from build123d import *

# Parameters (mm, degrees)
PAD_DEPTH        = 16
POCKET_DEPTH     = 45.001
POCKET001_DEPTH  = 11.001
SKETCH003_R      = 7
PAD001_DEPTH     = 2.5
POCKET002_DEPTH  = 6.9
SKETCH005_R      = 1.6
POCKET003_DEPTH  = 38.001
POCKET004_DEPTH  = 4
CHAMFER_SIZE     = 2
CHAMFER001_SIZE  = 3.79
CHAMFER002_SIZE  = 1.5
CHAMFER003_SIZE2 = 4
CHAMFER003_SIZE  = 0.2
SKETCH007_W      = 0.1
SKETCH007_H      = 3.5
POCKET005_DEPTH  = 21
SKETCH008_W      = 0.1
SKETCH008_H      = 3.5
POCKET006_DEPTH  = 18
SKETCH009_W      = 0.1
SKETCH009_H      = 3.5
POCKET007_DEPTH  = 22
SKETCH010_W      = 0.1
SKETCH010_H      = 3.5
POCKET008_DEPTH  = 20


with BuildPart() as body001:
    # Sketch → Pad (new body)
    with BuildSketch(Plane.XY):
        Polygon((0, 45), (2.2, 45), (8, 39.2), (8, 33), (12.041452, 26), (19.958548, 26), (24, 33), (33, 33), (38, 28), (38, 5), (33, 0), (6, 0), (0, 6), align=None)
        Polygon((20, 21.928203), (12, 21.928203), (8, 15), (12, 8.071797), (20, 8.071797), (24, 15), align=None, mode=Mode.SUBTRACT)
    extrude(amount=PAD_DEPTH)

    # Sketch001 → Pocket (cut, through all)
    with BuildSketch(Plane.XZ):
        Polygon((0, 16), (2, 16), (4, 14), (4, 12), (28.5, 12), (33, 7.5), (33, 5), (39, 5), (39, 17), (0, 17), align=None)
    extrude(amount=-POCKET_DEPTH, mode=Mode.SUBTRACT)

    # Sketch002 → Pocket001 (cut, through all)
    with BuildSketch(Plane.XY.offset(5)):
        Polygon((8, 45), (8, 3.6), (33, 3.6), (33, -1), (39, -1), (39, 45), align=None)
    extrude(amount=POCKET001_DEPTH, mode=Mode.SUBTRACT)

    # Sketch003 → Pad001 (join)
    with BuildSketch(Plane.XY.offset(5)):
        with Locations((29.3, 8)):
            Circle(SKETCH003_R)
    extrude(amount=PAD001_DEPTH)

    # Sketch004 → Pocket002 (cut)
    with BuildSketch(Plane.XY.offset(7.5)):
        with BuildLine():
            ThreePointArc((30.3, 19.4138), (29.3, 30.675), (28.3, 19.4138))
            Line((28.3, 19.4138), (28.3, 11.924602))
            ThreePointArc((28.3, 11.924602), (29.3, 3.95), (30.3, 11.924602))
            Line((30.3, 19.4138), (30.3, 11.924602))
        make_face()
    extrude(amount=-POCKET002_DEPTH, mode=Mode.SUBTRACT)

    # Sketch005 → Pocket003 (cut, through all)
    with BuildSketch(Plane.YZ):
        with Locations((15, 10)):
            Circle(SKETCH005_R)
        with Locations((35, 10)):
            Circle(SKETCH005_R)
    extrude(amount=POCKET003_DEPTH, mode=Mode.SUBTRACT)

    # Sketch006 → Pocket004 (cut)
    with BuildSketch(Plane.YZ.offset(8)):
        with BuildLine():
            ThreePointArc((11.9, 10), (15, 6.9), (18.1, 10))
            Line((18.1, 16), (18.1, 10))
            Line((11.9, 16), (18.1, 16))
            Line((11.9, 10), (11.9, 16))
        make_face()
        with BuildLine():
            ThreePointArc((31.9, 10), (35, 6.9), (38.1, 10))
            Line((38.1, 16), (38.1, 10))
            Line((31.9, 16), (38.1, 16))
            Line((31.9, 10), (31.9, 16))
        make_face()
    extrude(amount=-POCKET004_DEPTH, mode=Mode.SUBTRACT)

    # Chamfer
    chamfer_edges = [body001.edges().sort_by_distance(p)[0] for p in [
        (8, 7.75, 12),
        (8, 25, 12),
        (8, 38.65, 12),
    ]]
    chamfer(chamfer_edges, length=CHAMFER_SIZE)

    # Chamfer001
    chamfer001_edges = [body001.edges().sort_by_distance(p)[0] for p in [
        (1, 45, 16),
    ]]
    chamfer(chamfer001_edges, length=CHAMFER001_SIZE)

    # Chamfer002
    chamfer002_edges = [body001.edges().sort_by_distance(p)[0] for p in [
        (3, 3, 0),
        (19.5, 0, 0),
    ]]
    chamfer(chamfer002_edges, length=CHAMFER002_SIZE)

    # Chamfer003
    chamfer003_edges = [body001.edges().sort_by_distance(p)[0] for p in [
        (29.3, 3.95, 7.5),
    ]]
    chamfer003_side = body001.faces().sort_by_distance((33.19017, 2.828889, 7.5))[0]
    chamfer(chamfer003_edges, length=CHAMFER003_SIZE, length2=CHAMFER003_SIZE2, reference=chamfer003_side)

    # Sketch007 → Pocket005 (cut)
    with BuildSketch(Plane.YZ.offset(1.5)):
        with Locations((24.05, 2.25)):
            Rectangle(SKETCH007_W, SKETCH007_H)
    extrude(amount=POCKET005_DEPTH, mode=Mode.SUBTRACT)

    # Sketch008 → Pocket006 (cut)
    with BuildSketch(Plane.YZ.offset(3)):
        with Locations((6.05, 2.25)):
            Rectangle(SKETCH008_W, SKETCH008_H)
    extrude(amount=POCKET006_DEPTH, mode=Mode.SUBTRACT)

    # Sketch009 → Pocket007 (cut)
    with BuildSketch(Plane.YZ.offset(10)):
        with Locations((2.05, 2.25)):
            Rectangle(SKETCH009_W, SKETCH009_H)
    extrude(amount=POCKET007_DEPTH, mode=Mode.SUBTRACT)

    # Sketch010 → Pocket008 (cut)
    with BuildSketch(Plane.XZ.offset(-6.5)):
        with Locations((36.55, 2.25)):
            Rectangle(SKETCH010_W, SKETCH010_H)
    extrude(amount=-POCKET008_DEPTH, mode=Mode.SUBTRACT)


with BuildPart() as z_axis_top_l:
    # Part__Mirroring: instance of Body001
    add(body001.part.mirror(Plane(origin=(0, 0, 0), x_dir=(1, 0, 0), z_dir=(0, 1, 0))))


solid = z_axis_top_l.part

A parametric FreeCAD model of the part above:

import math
import FreeCAD as App
import Part
import Sketcher

V = App.Vector
Q = App.Units.Quantity


def edges_at(feature, points):
    """Names of the edges that pass closest to the given points."""
    edges = feature.Shape.Edges
    near = lambda p: min(range(len(edges)), key=lambda i: edges[i].distToShape(Part.Vertex(*p))[0])
    return sorted({f"Edge{near(p) + 1}" for p in points})


def add_polygon(sketch, points):
    """Adds a closed chain of lines whose ends are joined by coincident constraints."""
    first, n = sketch.GeometryCount, len(points)
    for a, b in zip(points, points[1:] + points[:1]):
        sketch.addGeometry(Part.LineSegment(App.Vector(*a, 0), App.Vector(*b, 0)), False)
    for i in range(n):
        sketch.addConstraint(Sketcher.Constraint("Coincident", first + i, 2, first + (i + 1) % n, 1))

doc = App.newDocument("Part")
params = doc.addObject("Spreadsheet::Sheet", "Params")
for row, (alias, value) in enumerate([
    ("sketch1_width", "27 mm"),
    ("sketch1_width2", "9 mm"),
    ("sketch1_width3", "8 mm"),
    ("sketch1_height", "39 mm"),
    ("sketch1_height2", "23 mm"),
    ("pad1_length", "16 mm"),
    ("sketch2_width", "2 mm"),
    ("sketch2_width2", "6 mm"),
    ("sketch2_width3", "39 mm"),
    ("sketch2_height", "12 mm"),
    ("sketch2_height2", "1 mm"),
    ("sketch3_width", "25 mm"),
    ("sketch3_width2", "6 mm"),
    ("sketch3_height", "46 mm"),
    ("sketch3_height2", "41.4 mm"),
    ("sketch4_diameter", "14 mm"),
    ("pad2_length", "2.5 mm"),
    ("sketch5_radius", "4.05 mm"),
    ("sketch5_width", "1 mm"),
    ("pocket3_length", "6.9 mm"),
    ("sketch6_diameter", "3.2 mm"),
    ("sketch7_radius", "3.1 mm"),
    ("sketch7_height", "6 mm"),
    ("pocket5_length", "4 mm"),
    ("chamfer_size", "2 mm"),
    ("chamfer2_size", "3.79 mm"),
    ("chamfer3_size", "1.5 mm"),
    ("chamfer4_size", "0.2 mm"),
    ("chamfer4_size2", "4 mm"),
    ("sketch8_width", "0.1 mm"),
    ("sketch8_height", "3.5 mm"),
    ("pocket6_length", "21 mm"),
    ("sketch9_width", "0.1 mm"),
    ("sketch9_height", "3.5 mm"),
    ("pocket7_length", "18 mm"),
    ("sketch10_width", "0.1 mm"),
    ("sketch10_height", "3.5 mm"),
    ("pocket8_length", "22 mm"),
    ("sketch11_width", "0.1 mm"),
    ("sketch11_height", "3.5 mm"),
    ("pocket9_length", "20 mm"),
], start=1):
    params.set(f"A{row}", alias)
    params.set(f"B{row}", "=" + value)
    params.setAlias(f"B{row}", alias)

body = doc.addObject("PartDesign::Body", "Body")

# Sketch on XY plane
sketch1 = body.newObject("Sketcher::SketchObject", "Sketch")
sketch1.AttachmentSupport = (doc.getObject("XY_Plane"), [""])
sketch1.MapMode = "FlatFace"
add_polygon(sketch1, [(2.2, 45), (0, 45), (0, 6), (6, 0), (33, 0), (38, 5), (38, 28), (33, 33), (24, 33), (20, 26), (12, 26), (8, 33), (8, 39.2)])  # lines 0-12
add_polygon(sketch1, [(20, 21.9), (24, 15), (20, 8.1), (12, 8.1), (8, 15), (12, 21.9)])  # lines 13-18
sketch1.addConstraint(Sketcher.Constraint("Horizontal", 0))
sketch1.addConstraint(Sketcher.Constraint("Vertical", 1))
sketch1.addConstraint(Sketcher.Constraint("Horizontal", 3))
sketch1.addConstraint(Sketcher.Constraint("Vertical", 5))
sketch1.addConstraint(Sketcher.Constraint("Horizontal", 7))
sketch1.addConstraint(Sketcher.Constraint("Horizontal", 9))
sketch1.addConstraint(Sketcher.Constraint("Vertical", 11))
sketch1.addConstraint(Sketcher.Constraint("Horizontal", 15))
sketch1.addConstraint(Sketcher.Constraint("Horizontal", 18))
sketch1.addConstraint(Sketcher.Constraint("PointOnObject", 0, 2, -2))
sketch1.addConstraint(Sketcher.Constraint("PointOnObject", 2, 2, -1))
sketch1.addConstraint(Sketcher.Constraint("Perpendicular", 2, 4))
sketch1.addConstraint(Sketcher.Constraint("Perpendicular", 4, 6))
sketch1.addConstraint(Sketcher.Constraint("Parallel", 6, 12))
sketch1.addConstraint(Sketcher.Constraint("Parallel", 10, 13))
sketch1.addConstraint(Sketcher.Constraint("Parallel", 8, 14))
sketch1.addConstraint(Sketcher.Constraint("Parallel", 13, 16))
sketch1.addConstraint(Sketcher.Constraint("Parallel", 14, 17))
sketch1.addConstraint(Sketcher.Constraint("Horizontal", 7, 2, 10, 2))
sketch1.addConstraint(Sketcher.Constraint("Horizontal", 13, 2, 16, 2))
sketch1.addConstraint(Sketcher.Constraint("Vertical", 3, 2, 6, 2))
sketch1.addConstraint(Sketcher.Constraint("Vertical", 7, 2, 13, 2))
sketch1.addConstraint(Sketcher.Constraint("Vertical", 11, 2, 16, 2))
sketch1.addConstraint(Sketcher.Constraint("Vertical", 15, 2, 17, 2))
sketch1.addConstraint(Sketcher.Constraint("Vertical", 14, 2, 18, 2))
sketch1.addConstraint(Sketcher.Constraint("Equal", 4, 6))
sketch1.addConstraint(Sketcher.Constraint("DistanceX", 3, 1, 3, 2, 27.0))
sketch1.addConstraint(Sketcher.Constraint("DistanceX", 7, 2, 7, 1, 9.0))
sketch1.addConstraint(Sketcher.Constraint("DistanceX", 15, 2, 15, 1, 8.0))
sketch1.addConstraint(Sketcher.Constraint("DistanceY", 1, 2, 1, 1, 39.0))
sketch1.addConstraint(Sketcher.Constraint("DistanceY", 5, 1, 5, 2, 23.0))
sketch1.addConstraint(Sketcher.Constraint("Angle", 8, Q("-120.000001 deg")))
sketch1.addConstraint(Sketcher.Constraint("Distance", 13, 8.0))
sketch1.addConstraint(Sketcher.Constraint("DistanceX", 0, 2, 0, 1, 2.2))
sketch1.addConstraint(Sketcher.Constraint("DistanceY", 11, 1, 11, 2, 6.2))
sketch1.addConstraint(Sketcher.Constraint("DistanceY", -1, 1, 0, 2, 45.0))
sketch1.addConstraint(Sketcher.Constraint("DistanceY", -1, 1, 8, 2, 26.0))
sketch1.addConstraint(Sketcher.Constraint("DistanceY", -1, 1, 13, 2, 15.0))
sketch1.setExpression("Constraints[45]", "Params.sketch1_width")
sketch1.setExpression("Constraints[46]", "Params.sketch1_width2")
sketch1.setExpression("Constraints[47]", "Params.sketch1_width3")
sketch1.setExpression("Constraints[48]", "Params.sketch1_height")
sketch1.setExpression("Constraints[49]", "Params.sketch1_height2")
pad1 = body.newObject("PartDesign::Pad", "Pad")
pad1.Profile = sketch1
pad1.setExpression("Length", "Params.pad1_length")

# Sketch on XZ plane
sketch2 = body.newObject("Sketcher::SketchObject", "Sketch001")
sketch2.AttachmentSupport = (doc.getObject("XZ_Plane"), [""])
sketch2.MapMode = "FlatFace"
add_polygon(sketch2, [(0, 16), (2, 16), (4, 14), (4, 12), (28.5, 12), (33, 7.5), (33, 5), (39, 5), (39, 17), (0, 17)])  # lines 0-9
sketch2.addConstraint(Sketcher.Constraint("Horizontal", 0))
sketch2.addConstraint(Sketcher.Constraint("Vertical", 2))
sketch2.addConstraint(Sketcher.Constraint("Horizontal", 3))
sketch2.addConstraint(Sketcher.Constraint("Vertical", 5))
sketch2.addConstraint(Sketcher.Constraint("Horizontal", 6))
sketch2.addConstraint(Sketcher.Constraint("Vertical", 7))
sketch2.addConstraint(Sketcher.Constraint("Horizontal", 8))
sketch2.addConstraint(Sketcher.Constraint("Vertical", 9))
sketch2.addConstraint(Sketcher.Constraint("PointOnObject", 8, 2, -2))
sketch2.addConstraint(Sketcher.Constraint("Parallel", 1, 4))
sketch2.addConstraint(Sketcher.Constraint("Equal", 0, 2))
sketch2.addConstraint(Sketcher.Constraint("DistanceX", 0, 1, 0, 2, 2.0))
sketch2.addConstraint(Sketcher.Constraint("DistanceX", 6, 1, 6, 2, 6.0))
sketch2.addConstraint(Sketcher.Constraint("DistanceX", 8, 2, 8, 1, 39.0))
sketch2.addConstraint(Sketcher.Constraint("DistanceY", 7, 1, 7, 2, 12.0))
sketch2.addConstraint(Sketcher.Constraint("DistanceY", 9, 2, 9, 1, 1.0))
sketch2.addConstraint(Sketcher.Constraint("Angle", 1, Q("-45 deg")))
sketch2.addConstraint(Sketcher.Constraint("DistanceX", 3, 1, 3, 2, 24.5))
sketch2.addConstraint(Sketcher.Constraint("DistanceY", -1, 1, 0, 2, 16.0))
sketch2.addConstraint(Sketcher.Constraint("DistanceX", -1, 1, 1, 2, 4.0))
sketch2.setExpression("Constraints[21]", "Params.sketch2_width")
sketch2.setExpression("Constraints[22]", "Params.sketch2_width2")
sketch2.setExpression("Constraints[23]", "Params.sketch2_width3")
sketch2.setExpression("Constraints[24]", "Params.sketch2_height")
sketch2.setExpression("Constraints[25]", "Params.sketch2_height2")
pocket1 = body.newObject("PartDesign::Pocket", "Pocket")
pocket1.Profile = sketch2
pocket1.Type = "ThroughAll"

# Sketch on XY plane
sketch3 = body.newObject("Sketcher::SketchObject", "Sketch002")
sketch3.AttachmentSupport = (doc.getObject("XY_Plane"), [""])
sketch3.MapMode = "FlatFace"
sketch3.AttachmentOffset = App.Placement(V(0, 0, 5), App.Rotation())
add_polygon(sketch3, [(8, 45), (8, 3.6), (33, 3.6), (33, -1), (39, -1), (39, 45)])  # lines 0-5
sketch3.addConstraint(Sketcher.Constraint("Vertical", 0))
sketch3.addConstraint(Sketcher.Constraint("Horizontal", 1))
sketch3.addConstraint(Sketcher.Constraint("Vertical", 2))
sketch3.addConstraint(Sketcher.Constraint("Horizontal", 3))
sketch3.addConstraint(Sketcher.Constraint("Vertical", 4))
sketch3.addConstraint(Sketcher.Constraint("Horizontal", 5))
sketch3.addConstraint(Sketcher.Constraint("DistanceX", 1, 1, 1, 2, 25.0))
sketch3.addConstraint(Sketcher.Constraint("DistanceX", 3, 1, 3, 2, 6.0))
sketch3.addConstraint(Sketcher.Constraint("DistanceY", 4, 1, 4, 2, 46.0))
sketch3.addConstraint(Sketcher.Constraint("DistanceY", 0, 2, 0, 1, 41.4))
sketch3.addConstraint(Sketcher.Constraint("DistanceX", -1, 1, 0, 2, 8.0))
sketch3.addConstraint(Sketcher.Constraint("DistanceY", 2, 2, -1, 1, 1.0))
sketch3.setExpression("Constraints[12]", "Params.sketch3_width")
sketch3.setExpression("Constraints[13]", "Params.sketch3_width2")
sketch3.setExpression("Constraints[14]", "Params.sketch3_height")
sketch3.setExpression("Constraints[15]", "Params.sketch3_height2")
pocket2 = body.newObject("PartDesign::Pocket", "Pocket001")
pocket2.Profile = sketch3
pocket2.Type = "ThroughAll"
pocket2.Reversed = True

# Sketch on XY plane
sketch4 = body.newObject("Sketcher::SketchObject", "Sketch003")
sketch4.AttachmentSupport = (doc.getObject("XY_Plane"), [""])
sketch4.MapMode = "FlatFace"
sketch4.AttachmentOffset = App.Placement(V(0, 0, 5), App.Rotation())
sketch4.addGeometry(Part.Circle(V(29, 8, 0), V(0, 0, 1), 7), False)
sketch4.addConstraint(Sketcher.Constraint("Diameter", 0, 14.0))
sketch4.addConstraint(Sketcher.Constraint("DistanceY", -1, 1, 0, 3, 8.0))
sketch4.addConstraint(Sketcher.Constraint("DistanceX", -1, 1, 0, 3, 29.3))
sketch4.setExpression("Constraints[0]", "Params.sketch4_diameter")
pad2 = body.newObject("PartDesign::Pad", "Pad001")
pad2.Profile = sketch4
pad2.setExpression("Length", "Params.pad2_length")

# Sketch on XY plane
sketch5 = body.newObject("Sketcher::SketchObject", "Sketch004")
sketch5.AttachmentSupport = (doc.getObject("XY_Plane"), [""])
sketch5.MapMode = "FlatFace"
sketch5.AttachmentOffset = App.Placement(V(0, 0, 7.5), App.Rotation())
sketch5.addGeometry(Part.ArcOfCircle(Part.Circle(V(29.3, 25, 0), V(0, 0, 1), 5.7), math.radians(-80), math.radians(260)), False)
sketch5.addGeometry(Part.LineSegment(V(28.3, 19.4, 0), V(28.3, 11.9, 0)), False)
sketch5.addGeometry(Part.ArcOfCircle(Part.Circle(V(29.3, 8, 0), V(0, 0, 1), 4.1), math.radians(104), math.radians(436)), False)
sketch5.addGeometry(Part.LineSegment(V(30.3, 11.9, 0), V(30.3, 19.4, 0)), False)
sketch5.addConstraint(Sketcher.Constraint("Coincident", 0, 2, 1, 1))
sketch5.addConstraint(Sketcher.Constraint("Coincident", 1, 2, 2, 1))
sketch5.addConstraint(Sketcher.Constraint("Coincident", 2, 2, 3, 1))
sketch5.addConstraint(Sketcher.Constraint("Coincident", 3, 2, 0, 1))
sketch5.addConstraint(Sketcher.Constraint("Vertical", 1))
sketch5.addConstraint(Sketcher.Constraint("Vertical", 3))
sketch5.addConstraint(Sketcher.Constraint("Horizontal", 1, 2, 2, 2))
sketch5.addConstraint(Sketcher.Constraint("Horizontal", 0, 2, 3, 2))
sketch5.addConstraint(Sketcher.Constraint("Radius", 2, 4.05))
sketch5.addConstraint(Sketcher.Constraint("DistanceY", -1, 1, 0, 3, 25.0))
sketch5.addConstraint(Sketcher.Constraint("DistanceY", -1, 1, 2, 3, 8.0))
sketch5.addConstraint(Sketcher.Constraint("Radius", 0, 5.675))
sketch5.addConstraint(Sketcher.Constraint("DistanceX", 0, 2, 0, 3, 1.0))
sketch5.addConstraint(Sketcher.Constraint("DistanceX", -1, 1, 0, 3, 29.3))
sketch5.setExpression("Constraints[8]", "Params.sketch5_radius")
sketch5.setExpression("Constraints[12]", "Params.sketch5_width")
pocket3 = body.newObject("PartDesign::Pocket", "Pocket002")
pocket3.Profile = sketch5
pocket3.setExpression("Length", "Params.pocket3_length")

# Sketch on YZ plane
sketch6 = body.newObject("Sketcher::SketchObject", "Sketch005")
sketch6.AttachmentSupport = (doc.getObject("YZ_Plane"), [""])
sketch6.MapMode = "FlatFace"
sketch6.addGeometry(Part.Circle(V(15, 10, 0), V(0, 0, 1), 1.6), False)
sketch6.addGeometry(Part.Circle(V(35, 10, 0), V(0, 0, 1), 1.6), False)
sketch6.addConstraint(Sketcher.Constraint("Equal", 0, 1))
sketch6.addConstraint(Sketcher.Constraint("Horizontal", 0, 3, 1, 3))
sketch6.addConstraint(Sketcher.Constraint("Diameter", 0, 3.2))
sketch6.addConstraint(Sketcher.Constraint("DistanceX", -1, 1, 0, 3, 15.0))
sketch6.addConstraint(Sketcher.Constraint("DistanceY", -1, 1, 0, 3, 10.0))
sketch6.addConstraint(Sketcher.Constraint("DistanceX", -1, 1, 1, 3, 35.0))
sketch6.setExpression("Constraints[2]", "Params.sketch6_diameter")
pocket4 = body.newObject("PartDesign::Pocket", "Pocket003")
pocket4.Profile = sketch6
pocket4.Type = "ThroughAll"
pocket4.Reversed = True

# Sketch on YZ plane
sketch7 = body.newObject("Sketcher::SketchObject", "Sketch006")
sketch7.AttachmentSupport = (doc.getObject("YZ_Plane"), [""])
sketch7.MapMode = "FlatFace"
sketch7.AttachmentOffset = App.Placement(V(0, 0, 8), App.Rotation())
sketch7.addGeometry(Part.ArcOfCircle(Part.Circle(V(15, 10, 0), V(0, 0, 1), 3.1), math.radians(180), math.radians(360)), False)
sketch7.addGeometry(Part.LineSegment(V(18.1, 10, 0), V(18.1, 16, 0)), False)
sketch7.addGeometry(Part.LineSegment(V(18.1, 16, 0), V(11.9, 16, 0)), False)
sketch7.addGeometry(Part.LineSegment(V(11.9, 16, 0), V(11.9, 10, 0)), False)
sketch7.addGeometry(Part.ArcOfCircle(Part.Circle(V(35, 10, 0), V(0, 0, 1), 3.1), math.radians(180), math.radians(360)), False)
sketch7.addGeometry(Part.LineSegment(V(38.1, 10, 0), V(38.1, 16, 0)), False)
sketch7.addGeometry(Part.LineSegment(V(38.1, 16, 0), V(31.9, 16, 0)), False)
sketch7.addGeometry(Part.LineSegment(V(31.9, 16, 0), V(31.9, 10, 0)), False)
sketch7.addConstraint(Sketcher.Constraint("Tangent", 0, 2, 1, 1))
sketch7.addConstraint(Sketcher.Constraint("Coincident", 1, 2, 2, 1))
sketch7.addConstraint(Sketcher.Constraint("Coincident", 2, 2, 3, 1))
sketch7.addConstraint(Sketcher.Constraint("Tangent", 3, 2, 0, 1))
sketch7.addConstraint(Sketcher.Constraint("Tangent", 4, 2, 5, 1))
sketch7.addConstraint(Sketcher.Constraint("Coincident", 5, 2, 6, 1))
sketch7.addConstraint(Sketcher.Constraint("Coincident", 6, 2, 7, 1))
sketch7.addConstraint(Sketcher.Constraint("Tangent", 7, 2, 4, 1))
sketch7.addConstraint(Sketcher.Constraint("Vertical", 1))
sketch7.addConstraint(Sketcher.Constraint("Horizontal", 2))
sketch7.addConstraint(Sketcher.Constraint("Vertical", 3))
sketch7.addConstraint(Sketcher.Constraint("Vertical", 5))
sketch7.addConstraint(Sketcher.Constraint("Horizontal", 6))
sketch7.addConstraint(Sketcher.Constraint("Vertical", 7))
sketch7.addConstraint(Sketcher.Constraint("Equal", 0, 4))
sketch7.addConstraint(Sketcher.Constraint("Horizontal", 0, 3, 4, 3))
sketch7.addConstraint(Sketcher.Constraint("Horizontal", 2, 2, 5, 2))
sketch7.addConstraint(Sketcher.Constraint("Radius", 0, 3.1))
sketch7.addConstraint(Sketcher.Constraint("DistanceY", 1, 1, 1, 2, 6.0))
sketch7.addConstraint(Sketcher.Constraint("DistanceX", -1, 1, 0, 3, 15.0))
sketch7.addConstraint(Sketcher.Constraint("DistanceY", -1, 1, 0, 3, 10.0))
sketch7.addConstraint(Sketcher.Constraint("DistanceX", -1, 1, 4, 3, 35.0))
sketch7.setExpression("Constraints[17]", "Params.sketch7_radius")
sketch7.setExpression("Constraints[18]", "Params.sketch7_height")
pocket5 = body.newObject("PartDesign::Pocket", "Pocket004")
pocket5.Profile = sketch7
pocket5.setExpression("Length", "Params.pocket5_length")
doc.recompute()

chamfer = body.newObject("PartDesign::Chamfer", "Chamfer")
chamfer.Base = (pocket5, edges_at(pocket5, [(8, 7.75, 12), (8, 25, 12), (8, 38.65, 12)]))
chamfer.setExpression("Size", "Params.chamfer_size")
doc.recompute()

chamfer2 = body.newObject("PartDesign::Chamfer", "Chamfer001")
chamfer2.Base = (chamfer, edges_at(chamfer, [(1, 45, 16)]))
chamfer2.setExpression("Size", "Params.chamfer2_size")
doc.recompute()

chamfer3 = body.newObject("PartDesign::Chamfer", "Chamfer002")
chamfer3.Base = (chamfer2, edges_at(chamfer2, [(3, 3, 0), (19.5, 0, 0)]))
chamfer3.setExpression("Size", "Params.chamfer3_size")
doc.recompute()

chamfer4 = body.newObject("PartDesign::Chamfer", "Chamfer003")
chamfer4.Base = (chamfer3, edges_at(chamfer3, [(29.3, 3.95, 7.5)]))
chamfer4.ChamferType = "Two distances"
chamfer4.setExpression("Size", "Params.chamfer4_size")
chamfer4.setExpression("Size2", "Params.chamfer4_size2")

# Sketch on YZ plane
sketch8 = body.newObject("Sketcher::SketchObject", "Sketch007")
sketch8.AttachmentSupport = (doc.getObject("YZ_Plane"), [""])
sketch8.MapMode = "FlatFace"
sketch8.AttachmentOffset = App.Placement(V(0, 0, 1.5), App.Rotation())
add_polygon(sketch8, [(24, 4), (24, 0.5), (24.1, 0.5), (24.1, 4)])  # lines 0-3
sketch8.addConstraint(Sketcher.Constraint("Vertical", 0))
sketch8.addConstraint(Sketcher.Constraint("Horizontal", 1))
sketch8.addConstraint(Sketcher.Constraint("Vertical", 2))
sketch8.addConstraint(Sketcher.Constraint("Horizontal", 3))
sketch8.addConstraint(Sketcher.Constraint("DistanceX", 1, 1, 1, 2, 0.1))
sketch8.addConstraint(Sketcher.Constraint("DistanceY", 0, 2, 0, 1, 3.5))
sketch8.addConstraint(Sketcher.Constraint("DistanceX", -1, 1, 0, 2, 24.0))
sketch8.addConstraint(Sketcher.Constraint("DistanceY", -1, 1, 2, 2, 4.0))
sketch8.setExpression("Constraints[8]", "Params.sketch8_width")
sketch8.setExpression("Constraints[9]", "Params.sketch8_height")
pocket6 = body.newObject("PartDesign::Pocket", "Pocket005")
pocket6.Profile = sketch8
pocket6.setExpression("Length", "Params.pocket6_length")
pocket6.Reversed = True

# Sketch on YZ plane
sketch9 = body.newObject("Sketcher::SketchObject", "Sketch008")
sketch9.AttachmentSupport = (doc.getObject("YZ_Plane"), [""])
sketch9.MapMode = "FlatFace"
sketch9.AttachmentOffset = App.Placement(V(0, 0, 3), App.Rotation())
add_polygon(sketch9, [(6, 4), (6, 0.5), (6.1, 0.5), (6.1, 4)])  # lines 0-3
sketch9.addConstraint(Sketcher.Constraint("Vertical", 0))
sketch9.addConstraint(Sketcher.Constraint("Horizontal", 1))
sketch9.addConstraint(Sketcher.Constraint("Vertical", 2))
sketch9.addConstraint(Sketcher.Constraint("Horizontal", 3))
sketch9.addConstraint(Sketcher.Constraint("DistanceX", 1, 1, 1, 2, 0.1))
sketch9.addConstraint(Sketcher.Constraint("DistanceY", 0, 2, 0, 1, 3.5))
sketch9.addConstraint(Sketcher.Constraint("DistanceX", -1, 1, 0, 2, 6.0))
sketch9.addConstraint(Sketcher.Constraint("DistanceY", -1, 1, 2, 2, 4.0))
sketch9.setExpression("Constraints[8]", "Params.sketch9_width")
sketch9.setExpression("Constraints[9]", "Params.sketch9_height")
pocket7 = body.newObject("PartDesign::Pocket", "Pocket006")
pocket7.Profile = sketch9
pocket7.setExpression("Length", "Params.pocket7_length")
pocket7.Reversed = True

# Sketch on YZ plane
sketch10 = body.newObject("Sketcher::SketchObject", "Sketch009")
sketch10.AttachmentSupport = (doc.getObject("YZ_Plane"), [""])
sketch10.MapMode = "FlatFace"
sketch10.AttachmentOffset = App.Placement(V(0, 0, 10), App.Rotation())
add_polygon(sketch10, [(2, 4), (2, 0.5), (2.1, 0.5), (2.1, 4)])  # lines 0-3
sketch10.addConstraint(Sketcher.Constraint("Vertical", 0))
sketch10.addConstraint(Sketcher.Constraint("Horizontal", 1))
sketch10.addConstraint(Sketcher.Constraint("Vertical", 2))
sketch10.addConstraint(Sketcher.Constraint("Horizontal", 3))
sketch10.addConstraint(Sketcher.Constraint("DistanceX", 1, 1, 1, 2, 0.1))
sketch10.addConstraint(Sketcher.Constraint("DistanceY", 0, 2, 0, 1, 3.5))
sketch10.addConstraint(Sketcher.Constraint("DistanceX", -1, 1, 0, 2, 2.0))
sketch10.addConstraint(Sketcher.Constraint("DistanceY", -1, 1, 2, 2, 4.0))
sketch10.setExpression("Constraints[8]", "Params.sketch10_width")
sketch10.setExpression("Constraints[9]", "Params.sketch10_height")
pocket8 = body.newObject("PartDesign::Pocket", "Pocket007")
pocket8.Profile = sketch10
pocket8.setExpression("Length", "Params.pocket8_length")
pocket8.Reversed = True

# Sketch on XZ plane
sketch11 = body.newObject("Sketcher::SketchObject", "Sketch010")
sketch11.AttachmentSupport = (doc.getObject("XZ_Plane"), [""])
sketch11.MapMode = "FlatFace"
sketch11.AttachmentOffset = App.Placement(V(0, 0, -6.5), App.Rotation())
add_polygon(sketch11, [(36.5, 4), (36.5, 0.5), (36.6, 0.5), (36.6, 4)])  # lines 0-3
sketch11.addConstraint(Sketcher.Constraint("Vertical", 0))
sketch11.addConstraint(Sketcher.Constraint("Horizontal", 1))
sketch11.addConstraint(Sketcher.Constraint("Vertical", 2))
sketch11.addConstraint(Sketcher.Constraint("Horizontal", 3))
sketch11.addConstraint(Sketcher.Constraint("DistanceX", 1, 1, 1, 2, 0.1))
sketch11.addConstraint(Sketcher.Constraint("DistanceY", 0, 2, 0, 1, 3.5))
sketch11.addConstraint(Sketcher.Constraint("DistanceY", -1, 1, 2, 2, 4.0))
sketch11.addConstraint(Sketcher.Constraint("DistanceX", -1, 1, 0, 2, 36.5))
sketch11.setExpression("Constraints[8]", "Params.sketch11_width")
sketch11.setExpression("Constraints[9]", "Params.sketch11_height")
pocket9 = body.newObject("PartDesign::Pocket", "Pocket008")
pocket9.Profile = sketch11
pocket9.setExpression("Length", "Params.pocket9_length")
body2 = doc.addObject("PartDesign::Body", "Body001")
doc.recompute()

mirroring = doc.addObject("Part::Mirroring", "Mirroring")
mirroring.Source = body
mirroring.Base = V(0, 0, 0)
mirroring.Normal = V(0, 1, 0)
body2.BaseFeature = mirroring
doc.recompute()
body.Visibility = False
mirroring.Visibility = False

doc.recompute()
